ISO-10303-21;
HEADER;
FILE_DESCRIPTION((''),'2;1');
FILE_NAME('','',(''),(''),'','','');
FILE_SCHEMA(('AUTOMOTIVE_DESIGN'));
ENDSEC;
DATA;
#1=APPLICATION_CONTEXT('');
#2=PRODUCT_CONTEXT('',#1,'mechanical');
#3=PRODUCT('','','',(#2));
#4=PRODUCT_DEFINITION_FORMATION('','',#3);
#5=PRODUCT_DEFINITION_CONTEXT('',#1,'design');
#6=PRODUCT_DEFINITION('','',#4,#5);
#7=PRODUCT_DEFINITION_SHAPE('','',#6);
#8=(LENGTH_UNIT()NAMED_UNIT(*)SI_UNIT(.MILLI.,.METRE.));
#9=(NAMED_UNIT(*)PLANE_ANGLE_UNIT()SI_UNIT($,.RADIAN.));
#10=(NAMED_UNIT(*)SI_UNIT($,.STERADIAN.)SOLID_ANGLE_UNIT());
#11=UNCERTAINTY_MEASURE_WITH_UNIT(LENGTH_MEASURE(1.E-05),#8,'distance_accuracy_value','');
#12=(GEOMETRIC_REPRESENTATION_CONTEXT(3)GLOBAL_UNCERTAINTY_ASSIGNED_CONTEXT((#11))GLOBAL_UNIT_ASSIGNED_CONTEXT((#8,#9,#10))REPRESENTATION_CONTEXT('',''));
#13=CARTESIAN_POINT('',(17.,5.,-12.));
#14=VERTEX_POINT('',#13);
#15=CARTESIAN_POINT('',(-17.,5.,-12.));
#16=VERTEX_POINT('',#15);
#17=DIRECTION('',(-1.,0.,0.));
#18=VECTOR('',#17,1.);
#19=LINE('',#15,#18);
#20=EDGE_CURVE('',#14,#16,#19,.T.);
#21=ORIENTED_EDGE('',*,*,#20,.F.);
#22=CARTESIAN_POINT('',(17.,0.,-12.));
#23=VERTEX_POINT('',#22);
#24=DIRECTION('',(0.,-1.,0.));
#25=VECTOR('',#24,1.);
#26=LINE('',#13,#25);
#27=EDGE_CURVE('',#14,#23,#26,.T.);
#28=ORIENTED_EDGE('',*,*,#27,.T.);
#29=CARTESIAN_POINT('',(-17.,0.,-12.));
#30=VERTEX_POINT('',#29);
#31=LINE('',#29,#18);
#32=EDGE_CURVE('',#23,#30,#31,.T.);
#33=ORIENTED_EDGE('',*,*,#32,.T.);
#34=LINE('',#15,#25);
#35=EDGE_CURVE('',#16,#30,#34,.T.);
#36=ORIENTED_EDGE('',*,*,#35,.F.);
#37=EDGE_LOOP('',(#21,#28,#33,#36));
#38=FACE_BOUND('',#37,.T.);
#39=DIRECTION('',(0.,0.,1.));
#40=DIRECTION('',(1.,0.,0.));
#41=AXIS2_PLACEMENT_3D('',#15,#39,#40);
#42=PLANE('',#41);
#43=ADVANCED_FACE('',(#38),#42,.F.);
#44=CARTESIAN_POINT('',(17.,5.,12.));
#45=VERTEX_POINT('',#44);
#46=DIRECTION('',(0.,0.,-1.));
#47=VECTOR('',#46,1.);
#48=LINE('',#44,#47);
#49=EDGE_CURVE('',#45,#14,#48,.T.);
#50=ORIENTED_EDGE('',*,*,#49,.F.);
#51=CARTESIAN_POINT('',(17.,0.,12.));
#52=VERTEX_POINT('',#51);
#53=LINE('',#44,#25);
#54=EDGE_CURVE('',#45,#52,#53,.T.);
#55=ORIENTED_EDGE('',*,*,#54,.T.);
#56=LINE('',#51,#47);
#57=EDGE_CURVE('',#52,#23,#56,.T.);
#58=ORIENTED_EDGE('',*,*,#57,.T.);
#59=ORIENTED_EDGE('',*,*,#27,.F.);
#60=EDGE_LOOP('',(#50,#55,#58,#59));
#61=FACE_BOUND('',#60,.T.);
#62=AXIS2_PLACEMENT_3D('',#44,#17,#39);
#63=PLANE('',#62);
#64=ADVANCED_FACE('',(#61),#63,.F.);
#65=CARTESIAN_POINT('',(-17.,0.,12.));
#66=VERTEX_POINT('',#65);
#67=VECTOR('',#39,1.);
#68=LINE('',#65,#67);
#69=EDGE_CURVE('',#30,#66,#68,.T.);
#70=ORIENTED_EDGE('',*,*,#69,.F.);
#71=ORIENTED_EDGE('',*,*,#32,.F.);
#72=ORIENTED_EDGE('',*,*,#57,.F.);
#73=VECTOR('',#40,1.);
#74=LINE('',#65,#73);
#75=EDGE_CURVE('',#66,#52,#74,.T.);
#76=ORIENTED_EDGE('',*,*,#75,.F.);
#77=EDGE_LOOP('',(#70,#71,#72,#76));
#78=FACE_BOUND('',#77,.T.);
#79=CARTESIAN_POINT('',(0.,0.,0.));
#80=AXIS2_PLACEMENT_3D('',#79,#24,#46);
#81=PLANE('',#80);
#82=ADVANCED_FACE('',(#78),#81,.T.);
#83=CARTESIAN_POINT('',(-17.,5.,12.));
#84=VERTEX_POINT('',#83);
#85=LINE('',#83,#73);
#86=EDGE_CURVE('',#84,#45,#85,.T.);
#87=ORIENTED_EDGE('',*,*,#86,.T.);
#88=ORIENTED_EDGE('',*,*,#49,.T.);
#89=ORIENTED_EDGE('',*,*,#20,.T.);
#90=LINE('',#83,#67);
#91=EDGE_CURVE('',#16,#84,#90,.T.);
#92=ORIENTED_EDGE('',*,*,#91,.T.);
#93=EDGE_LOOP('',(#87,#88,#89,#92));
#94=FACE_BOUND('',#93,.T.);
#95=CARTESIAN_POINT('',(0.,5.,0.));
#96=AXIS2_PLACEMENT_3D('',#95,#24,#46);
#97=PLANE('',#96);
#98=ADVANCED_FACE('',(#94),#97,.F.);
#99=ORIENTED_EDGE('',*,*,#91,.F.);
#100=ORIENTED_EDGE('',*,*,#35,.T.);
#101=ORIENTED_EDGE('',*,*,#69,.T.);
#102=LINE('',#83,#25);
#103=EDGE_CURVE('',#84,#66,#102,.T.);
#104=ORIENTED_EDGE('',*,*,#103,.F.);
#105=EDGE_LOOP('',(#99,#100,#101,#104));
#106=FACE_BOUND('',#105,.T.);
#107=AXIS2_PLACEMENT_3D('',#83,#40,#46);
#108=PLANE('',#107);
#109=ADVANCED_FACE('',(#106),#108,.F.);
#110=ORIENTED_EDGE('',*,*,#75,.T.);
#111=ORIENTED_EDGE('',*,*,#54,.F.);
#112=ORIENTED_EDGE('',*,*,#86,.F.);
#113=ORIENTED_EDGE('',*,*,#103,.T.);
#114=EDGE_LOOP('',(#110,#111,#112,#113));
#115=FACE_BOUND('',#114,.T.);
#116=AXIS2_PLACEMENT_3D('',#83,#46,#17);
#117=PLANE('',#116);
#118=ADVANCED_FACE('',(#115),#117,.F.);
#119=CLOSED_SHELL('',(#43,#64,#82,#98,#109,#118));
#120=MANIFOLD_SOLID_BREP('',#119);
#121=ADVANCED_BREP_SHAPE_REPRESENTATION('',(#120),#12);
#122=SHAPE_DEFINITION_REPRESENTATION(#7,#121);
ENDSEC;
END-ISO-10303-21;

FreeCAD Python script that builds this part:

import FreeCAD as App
import Part
import Sketcher

V = App.Vector
Q = App.Units.Quantity


def add_polygon(sketch, points):
    """Adds a closed chain of lines whose ends are joined by coincident constraints."""
    first, n = sketch.GeometryCount, len(points)
    for a, b in zip(points, points[1:] + points[:1]):
        sketch.addGeometry(Part.LineSegment(App.Vector(*a, 0), App.Vector(*b, 0)), False)
    for i in range(n):
        sketch.addConstraint(Sketcher.Constraint("Coincident", first + i, 2, first + (i + 1) % n, 1))

doc = App.newDocument("Part")
body = doc.addObject("PartDesign::Body", "Body")

sketch1 = doc.addObject("Sketcher::SketchObject", "Sketch")
body.addObject(sketch1)
sketch1.AttachmentSupport = (doc.XZ_Plane, [""])
sketch1.MapMode = "FlatFace"
add_polygon(sketch1, [(-17, -12), (-17, 12), (17, 12), (17, -12)])
sketch1.addConstraint([
    Sketcher.Constraint("Vertical", 0),
    Sketcher.Constraint("Horizontal", 1),
    Sketcher.Constraint("Vertical", 2),
    Sketcher.Constraint("Horizontal", 3),
    Sketcher.Constraint("Symmetric", 0, 2, 2, 2, -1, 1),
    Sketcher.Constraint("DistanceX", 1, 1, 1, 2, Q("34 mm")),
    Sketcher.Constraint("DistanceY", 0, 1, 0, 2, Q("24 mm")),
])
pad1 = doc.addObject("PartDesign::Pad", "Pad")
body.addObject(pad1)
pad1.Profile = sketch1
pad1.Length = 5
pad1.Reversed = True

doc.recompute()
